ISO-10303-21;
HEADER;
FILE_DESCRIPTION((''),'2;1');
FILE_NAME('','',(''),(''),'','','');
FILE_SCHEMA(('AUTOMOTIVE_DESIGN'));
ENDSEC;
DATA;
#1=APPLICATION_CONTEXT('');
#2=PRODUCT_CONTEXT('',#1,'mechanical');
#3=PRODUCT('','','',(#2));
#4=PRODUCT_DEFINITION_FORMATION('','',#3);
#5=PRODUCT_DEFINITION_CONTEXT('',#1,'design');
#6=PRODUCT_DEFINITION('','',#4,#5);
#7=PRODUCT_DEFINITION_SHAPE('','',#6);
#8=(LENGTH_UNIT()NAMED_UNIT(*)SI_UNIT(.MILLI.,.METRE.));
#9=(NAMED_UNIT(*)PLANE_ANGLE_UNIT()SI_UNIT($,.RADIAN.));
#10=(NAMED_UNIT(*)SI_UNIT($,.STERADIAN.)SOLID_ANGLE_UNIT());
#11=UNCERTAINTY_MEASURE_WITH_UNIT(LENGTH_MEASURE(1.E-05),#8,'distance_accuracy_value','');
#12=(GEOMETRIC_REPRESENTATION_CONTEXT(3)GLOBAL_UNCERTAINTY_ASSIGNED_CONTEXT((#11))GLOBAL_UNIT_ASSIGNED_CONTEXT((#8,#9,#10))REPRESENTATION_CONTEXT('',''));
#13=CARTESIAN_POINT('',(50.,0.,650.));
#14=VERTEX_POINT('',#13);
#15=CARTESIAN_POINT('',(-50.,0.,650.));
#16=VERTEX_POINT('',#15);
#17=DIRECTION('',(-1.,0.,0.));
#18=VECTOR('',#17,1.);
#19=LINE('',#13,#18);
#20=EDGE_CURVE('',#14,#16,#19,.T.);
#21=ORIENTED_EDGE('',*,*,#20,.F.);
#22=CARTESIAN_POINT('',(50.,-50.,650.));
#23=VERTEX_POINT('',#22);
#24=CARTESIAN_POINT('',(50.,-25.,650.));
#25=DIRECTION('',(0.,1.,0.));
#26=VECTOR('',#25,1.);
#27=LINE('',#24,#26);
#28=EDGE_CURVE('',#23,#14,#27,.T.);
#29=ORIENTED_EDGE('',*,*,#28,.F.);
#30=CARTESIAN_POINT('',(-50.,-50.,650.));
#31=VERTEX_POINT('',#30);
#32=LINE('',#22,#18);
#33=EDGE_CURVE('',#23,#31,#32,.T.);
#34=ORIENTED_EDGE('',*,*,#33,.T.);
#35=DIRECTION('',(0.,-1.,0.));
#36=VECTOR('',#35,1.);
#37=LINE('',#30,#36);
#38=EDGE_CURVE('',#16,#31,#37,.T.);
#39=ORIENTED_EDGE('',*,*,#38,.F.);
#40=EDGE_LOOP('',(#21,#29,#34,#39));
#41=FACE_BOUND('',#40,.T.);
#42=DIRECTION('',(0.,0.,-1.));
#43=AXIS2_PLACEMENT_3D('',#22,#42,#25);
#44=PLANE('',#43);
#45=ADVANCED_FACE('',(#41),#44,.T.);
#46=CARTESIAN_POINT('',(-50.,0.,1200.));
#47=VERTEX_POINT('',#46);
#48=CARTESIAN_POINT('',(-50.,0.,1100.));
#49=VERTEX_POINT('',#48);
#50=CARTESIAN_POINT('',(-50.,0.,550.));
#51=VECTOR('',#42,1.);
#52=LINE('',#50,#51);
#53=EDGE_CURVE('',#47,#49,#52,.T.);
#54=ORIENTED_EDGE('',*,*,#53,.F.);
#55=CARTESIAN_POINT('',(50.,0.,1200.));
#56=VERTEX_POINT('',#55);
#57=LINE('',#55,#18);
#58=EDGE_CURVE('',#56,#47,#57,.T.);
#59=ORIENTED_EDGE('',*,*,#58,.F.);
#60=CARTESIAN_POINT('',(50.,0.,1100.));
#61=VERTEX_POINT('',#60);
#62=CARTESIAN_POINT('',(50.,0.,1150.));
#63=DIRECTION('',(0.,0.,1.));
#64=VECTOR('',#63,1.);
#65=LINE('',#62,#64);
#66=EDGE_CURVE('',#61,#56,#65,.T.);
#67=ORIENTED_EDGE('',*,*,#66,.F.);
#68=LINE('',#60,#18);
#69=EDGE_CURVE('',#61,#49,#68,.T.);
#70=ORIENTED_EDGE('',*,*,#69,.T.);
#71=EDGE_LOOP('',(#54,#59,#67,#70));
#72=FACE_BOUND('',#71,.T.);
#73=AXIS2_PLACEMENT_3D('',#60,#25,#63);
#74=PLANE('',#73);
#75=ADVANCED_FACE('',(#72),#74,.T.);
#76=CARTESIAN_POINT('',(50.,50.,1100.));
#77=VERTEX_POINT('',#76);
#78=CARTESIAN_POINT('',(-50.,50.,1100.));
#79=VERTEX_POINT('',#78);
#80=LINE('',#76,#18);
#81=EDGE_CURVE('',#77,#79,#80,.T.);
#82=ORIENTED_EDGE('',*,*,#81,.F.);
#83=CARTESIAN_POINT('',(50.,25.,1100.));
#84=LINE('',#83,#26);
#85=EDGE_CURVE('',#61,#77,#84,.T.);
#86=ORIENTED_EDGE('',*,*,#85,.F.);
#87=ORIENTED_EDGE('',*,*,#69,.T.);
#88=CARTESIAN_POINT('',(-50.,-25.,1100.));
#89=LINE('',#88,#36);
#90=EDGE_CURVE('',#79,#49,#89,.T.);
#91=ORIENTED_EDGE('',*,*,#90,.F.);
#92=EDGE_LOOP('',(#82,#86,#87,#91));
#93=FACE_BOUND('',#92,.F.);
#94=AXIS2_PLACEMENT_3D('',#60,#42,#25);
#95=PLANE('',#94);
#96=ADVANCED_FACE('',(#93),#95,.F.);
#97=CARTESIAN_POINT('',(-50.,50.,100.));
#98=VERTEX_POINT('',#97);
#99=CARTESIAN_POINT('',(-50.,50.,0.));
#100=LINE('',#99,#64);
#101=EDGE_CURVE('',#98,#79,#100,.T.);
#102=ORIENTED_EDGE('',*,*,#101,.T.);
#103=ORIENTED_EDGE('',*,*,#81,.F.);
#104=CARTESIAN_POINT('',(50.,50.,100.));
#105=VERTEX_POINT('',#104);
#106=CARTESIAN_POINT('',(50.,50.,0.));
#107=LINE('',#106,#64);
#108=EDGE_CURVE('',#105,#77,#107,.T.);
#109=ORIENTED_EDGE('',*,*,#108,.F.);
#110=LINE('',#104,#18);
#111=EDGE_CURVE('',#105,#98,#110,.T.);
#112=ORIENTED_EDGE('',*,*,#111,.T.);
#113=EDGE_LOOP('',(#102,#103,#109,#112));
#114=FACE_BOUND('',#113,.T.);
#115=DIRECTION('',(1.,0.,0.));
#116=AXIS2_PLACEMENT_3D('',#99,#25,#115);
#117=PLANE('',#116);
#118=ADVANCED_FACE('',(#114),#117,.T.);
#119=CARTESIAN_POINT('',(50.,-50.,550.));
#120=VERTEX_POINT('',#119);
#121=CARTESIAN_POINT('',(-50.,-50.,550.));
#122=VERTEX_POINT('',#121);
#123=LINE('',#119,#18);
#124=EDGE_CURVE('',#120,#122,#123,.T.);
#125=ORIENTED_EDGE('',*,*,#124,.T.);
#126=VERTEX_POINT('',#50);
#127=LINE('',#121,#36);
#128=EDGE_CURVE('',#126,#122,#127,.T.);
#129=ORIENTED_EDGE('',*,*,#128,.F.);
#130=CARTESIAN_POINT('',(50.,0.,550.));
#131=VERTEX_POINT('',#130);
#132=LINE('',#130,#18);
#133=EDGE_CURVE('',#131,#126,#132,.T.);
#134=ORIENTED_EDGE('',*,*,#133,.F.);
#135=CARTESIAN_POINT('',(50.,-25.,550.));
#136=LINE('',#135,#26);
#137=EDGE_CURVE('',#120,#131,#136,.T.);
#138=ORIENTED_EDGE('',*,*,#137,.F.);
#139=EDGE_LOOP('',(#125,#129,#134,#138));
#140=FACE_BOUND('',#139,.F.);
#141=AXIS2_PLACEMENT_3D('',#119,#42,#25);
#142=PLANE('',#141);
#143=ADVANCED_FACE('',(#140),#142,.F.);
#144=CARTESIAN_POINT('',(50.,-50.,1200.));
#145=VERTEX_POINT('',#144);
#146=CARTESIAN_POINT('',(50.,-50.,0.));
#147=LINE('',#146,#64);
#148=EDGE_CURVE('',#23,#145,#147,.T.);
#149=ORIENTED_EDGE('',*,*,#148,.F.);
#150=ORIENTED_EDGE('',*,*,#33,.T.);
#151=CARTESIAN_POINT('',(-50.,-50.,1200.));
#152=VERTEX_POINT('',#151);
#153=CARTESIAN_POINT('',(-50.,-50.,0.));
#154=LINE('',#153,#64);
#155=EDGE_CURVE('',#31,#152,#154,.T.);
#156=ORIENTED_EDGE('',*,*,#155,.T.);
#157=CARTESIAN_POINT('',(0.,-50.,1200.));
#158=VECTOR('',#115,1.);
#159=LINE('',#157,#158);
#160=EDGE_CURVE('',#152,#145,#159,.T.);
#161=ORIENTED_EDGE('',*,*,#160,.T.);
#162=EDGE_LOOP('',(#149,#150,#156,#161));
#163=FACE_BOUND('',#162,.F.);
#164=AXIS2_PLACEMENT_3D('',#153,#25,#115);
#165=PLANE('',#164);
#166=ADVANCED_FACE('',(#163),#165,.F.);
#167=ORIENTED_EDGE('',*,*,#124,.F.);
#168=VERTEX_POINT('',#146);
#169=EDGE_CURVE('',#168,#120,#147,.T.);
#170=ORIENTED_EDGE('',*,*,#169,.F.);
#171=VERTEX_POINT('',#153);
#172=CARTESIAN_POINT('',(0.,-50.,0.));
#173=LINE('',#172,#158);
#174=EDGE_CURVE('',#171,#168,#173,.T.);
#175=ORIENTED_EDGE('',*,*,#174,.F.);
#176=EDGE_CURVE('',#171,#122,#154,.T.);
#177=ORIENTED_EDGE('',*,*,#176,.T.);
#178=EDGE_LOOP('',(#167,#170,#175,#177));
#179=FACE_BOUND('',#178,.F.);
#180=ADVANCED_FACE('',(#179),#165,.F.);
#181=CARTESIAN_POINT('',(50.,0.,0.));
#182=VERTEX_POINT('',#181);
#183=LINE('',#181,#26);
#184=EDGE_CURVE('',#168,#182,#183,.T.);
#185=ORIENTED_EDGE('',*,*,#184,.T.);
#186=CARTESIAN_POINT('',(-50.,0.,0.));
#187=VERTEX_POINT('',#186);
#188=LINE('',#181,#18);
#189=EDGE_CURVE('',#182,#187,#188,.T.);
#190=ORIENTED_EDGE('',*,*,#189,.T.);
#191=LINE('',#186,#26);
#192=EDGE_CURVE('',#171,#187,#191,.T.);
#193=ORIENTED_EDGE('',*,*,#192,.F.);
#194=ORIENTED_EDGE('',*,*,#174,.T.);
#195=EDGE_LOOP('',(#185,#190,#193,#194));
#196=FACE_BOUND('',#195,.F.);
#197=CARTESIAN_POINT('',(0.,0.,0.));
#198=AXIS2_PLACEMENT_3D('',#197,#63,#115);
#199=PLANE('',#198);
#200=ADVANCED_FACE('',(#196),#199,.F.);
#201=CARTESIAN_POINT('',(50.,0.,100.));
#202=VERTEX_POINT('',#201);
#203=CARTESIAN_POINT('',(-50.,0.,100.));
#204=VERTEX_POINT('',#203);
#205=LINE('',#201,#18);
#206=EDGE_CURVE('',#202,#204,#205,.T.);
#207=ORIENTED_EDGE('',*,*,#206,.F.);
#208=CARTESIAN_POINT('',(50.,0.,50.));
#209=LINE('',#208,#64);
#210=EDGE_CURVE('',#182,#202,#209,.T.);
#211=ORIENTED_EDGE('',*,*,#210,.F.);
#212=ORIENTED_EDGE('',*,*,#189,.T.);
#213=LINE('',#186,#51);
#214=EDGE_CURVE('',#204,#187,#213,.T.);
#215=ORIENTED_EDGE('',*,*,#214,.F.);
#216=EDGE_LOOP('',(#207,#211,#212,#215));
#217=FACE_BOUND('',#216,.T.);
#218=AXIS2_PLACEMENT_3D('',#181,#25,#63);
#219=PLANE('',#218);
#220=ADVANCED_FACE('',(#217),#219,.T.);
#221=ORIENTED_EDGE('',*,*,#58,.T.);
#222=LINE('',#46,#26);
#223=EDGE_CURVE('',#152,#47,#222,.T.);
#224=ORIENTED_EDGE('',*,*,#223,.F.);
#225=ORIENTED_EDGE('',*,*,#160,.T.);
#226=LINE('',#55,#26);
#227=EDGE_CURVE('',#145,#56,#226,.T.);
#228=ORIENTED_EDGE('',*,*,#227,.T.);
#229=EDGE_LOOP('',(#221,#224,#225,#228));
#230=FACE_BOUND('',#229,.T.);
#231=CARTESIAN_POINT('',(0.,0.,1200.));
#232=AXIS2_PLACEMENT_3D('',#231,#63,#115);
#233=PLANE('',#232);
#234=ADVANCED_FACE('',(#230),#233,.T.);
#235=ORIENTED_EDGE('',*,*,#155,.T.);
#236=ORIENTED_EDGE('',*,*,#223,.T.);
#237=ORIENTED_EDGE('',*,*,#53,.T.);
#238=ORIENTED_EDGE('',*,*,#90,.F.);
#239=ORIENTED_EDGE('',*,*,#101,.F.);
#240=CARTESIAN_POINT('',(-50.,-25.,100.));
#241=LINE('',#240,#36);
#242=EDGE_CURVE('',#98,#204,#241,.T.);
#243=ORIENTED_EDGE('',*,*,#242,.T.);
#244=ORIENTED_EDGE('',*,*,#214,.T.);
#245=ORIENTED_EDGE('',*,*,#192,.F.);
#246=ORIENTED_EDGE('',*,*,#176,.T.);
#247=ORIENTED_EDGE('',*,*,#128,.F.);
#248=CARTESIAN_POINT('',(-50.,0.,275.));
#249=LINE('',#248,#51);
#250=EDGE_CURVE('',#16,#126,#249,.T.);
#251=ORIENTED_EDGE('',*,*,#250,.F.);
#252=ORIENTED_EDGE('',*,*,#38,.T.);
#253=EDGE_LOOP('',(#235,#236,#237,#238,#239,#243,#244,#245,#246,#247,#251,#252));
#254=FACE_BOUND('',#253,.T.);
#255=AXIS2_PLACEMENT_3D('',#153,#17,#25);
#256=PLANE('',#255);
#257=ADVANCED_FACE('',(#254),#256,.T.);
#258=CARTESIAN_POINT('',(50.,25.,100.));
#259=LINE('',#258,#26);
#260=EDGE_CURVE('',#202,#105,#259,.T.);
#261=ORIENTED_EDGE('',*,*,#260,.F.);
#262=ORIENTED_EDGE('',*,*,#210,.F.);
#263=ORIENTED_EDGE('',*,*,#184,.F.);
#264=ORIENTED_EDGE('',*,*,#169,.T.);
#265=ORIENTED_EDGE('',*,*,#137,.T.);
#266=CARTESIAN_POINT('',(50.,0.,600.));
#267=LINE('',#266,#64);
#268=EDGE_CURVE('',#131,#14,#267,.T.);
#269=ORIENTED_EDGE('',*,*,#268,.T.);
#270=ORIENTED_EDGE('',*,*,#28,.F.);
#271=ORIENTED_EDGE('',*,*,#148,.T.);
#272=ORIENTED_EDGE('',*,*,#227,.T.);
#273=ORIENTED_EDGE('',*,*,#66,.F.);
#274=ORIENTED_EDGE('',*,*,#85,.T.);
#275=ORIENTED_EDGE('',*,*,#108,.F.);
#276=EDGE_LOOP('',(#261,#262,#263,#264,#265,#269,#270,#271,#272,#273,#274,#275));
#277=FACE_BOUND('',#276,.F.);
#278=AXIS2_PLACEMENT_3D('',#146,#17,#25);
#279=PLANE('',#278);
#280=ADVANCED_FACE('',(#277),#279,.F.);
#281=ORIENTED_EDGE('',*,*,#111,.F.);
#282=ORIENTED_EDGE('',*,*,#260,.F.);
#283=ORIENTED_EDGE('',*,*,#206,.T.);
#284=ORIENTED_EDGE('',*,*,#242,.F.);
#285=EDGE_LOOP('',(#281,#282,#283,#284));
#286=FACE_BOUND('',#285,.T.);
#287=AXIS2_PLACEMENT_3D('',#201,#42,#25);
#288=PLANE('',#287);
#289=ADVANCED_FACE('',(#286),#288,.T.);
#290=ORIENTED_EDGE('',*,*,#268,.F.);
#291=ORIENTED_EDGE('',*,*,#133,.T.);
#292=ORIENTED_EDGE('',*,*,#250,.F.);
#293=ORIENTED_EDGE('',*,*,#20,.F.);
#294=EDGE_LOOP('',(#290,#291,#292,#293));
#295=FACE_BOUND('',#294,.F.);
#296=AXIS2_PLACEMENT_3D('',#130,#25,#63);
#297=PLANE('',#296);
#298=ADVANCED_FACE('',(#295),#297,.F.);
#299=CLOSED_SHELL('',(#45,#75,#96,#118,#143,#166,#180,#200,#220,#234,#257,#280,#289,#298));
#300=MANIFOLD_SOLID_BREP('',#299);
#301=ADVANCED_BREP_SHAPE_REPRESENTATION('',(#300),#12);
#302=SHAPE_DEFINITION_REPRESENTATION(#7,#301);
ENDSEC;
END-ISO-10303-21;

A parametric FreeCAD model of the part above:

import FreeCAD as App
import Part
import Sketcher
from FreeCAD import Vector
Q = App.Units.Quantity


def add_polygon(sketch, points):
    """Adds a closed chain of lines whose ends are joined by coincident constraints."""
    first, n = sketch.GeometryCount, len(points)
    for a, b in zip(points, points[1:] + points[:1]):
        sketch.addGeometry(Part.LineSegment(App.Vector(*a, 0), App.Vector(*b, 0)), False)
    for i in range(n):
        sketch.addConstraint(Sketcher.Constraint("Coincident", first + i, 2, first + (i + 1) % n, 1))

doc = App.newDocument("Part")
body = doc.addObject("PartDesign::Body", "Body")

# Sketch on XY plane
sketch1 = body.newObject("Sketcher::SketchObject", "Sketch")
sketch1.AttachmentSupport = (doc.getObject("XY_Plane"), [""])
sketch1.MapMode = "FlatFace"
add_polygon(sketch1, [(-50, 50), (-50, -50), (50, -50), (50, 50)])  # lines 0-3
sketch1.addConstraint(Sketcher.Constraint("Vertical", 0))
sketch1.addConstraint(Sketcher.Constraint("Horizontal", 1))
sketch1.addConstraint(Sketcher.Constraint("Vertical", 2))
sketch1.addConstraint(Sketcher.Constraint("Horizontal", 3))
sketch1.addConstraint(Sketcher.Constraint("Symmetric", 0, 2, 2, 2, -1, 1))
sketch1.addConstraint(Sketcher.Constraint("Equal", 3, 0))
sketch1.addConstraint(Sketcher.Constraint("DistanceX", 1, 1, 1, 2, Q("100 mm")))
pad1 = body.newObject("PartDesign::Pad", "Pad")
pad1.Profile = sketch1
pad1.Length = 1200

# Sketch on YZ plane
sketch2 = body.newObject("Sketcher::SketchObject", "Sketch001")
sketch2.AttachmentSupport = (doc.getObject("YZ_Plane"), [""])
sketch2.MapMode = "FlatFace"
sketch2.AttachmentOffset = App.Placement(Vector(0, 0, 50), App.Rotation())
add_polygon(sketch2, [(0, 100), (0, 0), (50, 0), (50, 100)])  # lines 0-3
add_polygon(sketch2, [(0, 1200), (0, 1100), (50, 1100), (50, 1200)])  # lines 4-7
add_polygon(sketch2, [(-50, 650), (-50, 550), (0, 550), (0, 650)])  # lines 8-11
sketch2.addConstraint(Sketcher.Constraint("Vertical", 0))
sketch2.addConstraint(Sketcher.Constraint("Horizontal", 1))
sketch2.addConstraint(Sketcher.Constraint("Vertical", 2))
sketch2.addConstraint(Sketcher.Constraint("Horizontal", 3))
sketch2.addConstraint(Sketcher.Constraint("Vertical", 4))
sketch2.addConstraint(Sketcher.Constraint("Horizontal", 5))
sketch2.addConstraint(Sketcher.Constraint("Vertical", 6))
sketch2.addConstraint(Sketcher.Constraint("Horizontal", 7))
sketch2.addConstraint(Sketcher.Constraint("Vertical", 8))
sketch2.addConstraint(Sketcher.Constraint("Horizontal", 9))
sketch2.addConstraint(Sketcher.Constraint("Vertical", 10))
sketch2.addConstraint(Sketcher.Constraint("Horizontal", 11))
sketch2.addConstraint(Sketcher.Constraint("Coincident", 0, 2, -1, 1))
sketch2.addConstraint(Sketcher.Constraint("PointOnObject", 4, 2, -2))
sketch2.addConstraint(Sketcher.Constraint("PointOnObject", 9, 2, -2))
sketch2.addConstraint(Sketcher.Constraint("Vertical", 2, 2, 5, 2))
sketch2.addConstraint(Sketcher.Constraint("Equal", 7, 9))
sketch2.addConstraint(Sketcher.Constraint("Equal", 2, 4))
sketch2.addConstraint(Sketcher.Constraint("Equal", 6, 8))
sketch2.addConstraint(Sketcher.Constraint("DistanceX", 1, 1, 1, 2, Q("50 mm")))
sketch2.addConstraint(Sketcher.Constraint("DistanceY", 0, 2, 0, 1, Q("100 mm")))
sketch2.addConstraint(Sketcher.Constraint("DistanceY", -1, 1, 4, 2, Q("1100 mm")))
sketch2.addConstraint(Sketcher.Constraint("DistanceY", -1, 1, 8, 2, Q("550 mm")))
pocket1 = body.newObject("PartDesign::Pocket", "Pocket")
pocket1.Profile = sketch2
pocket1.Type = "ThroughAll"

doc.recompute()
